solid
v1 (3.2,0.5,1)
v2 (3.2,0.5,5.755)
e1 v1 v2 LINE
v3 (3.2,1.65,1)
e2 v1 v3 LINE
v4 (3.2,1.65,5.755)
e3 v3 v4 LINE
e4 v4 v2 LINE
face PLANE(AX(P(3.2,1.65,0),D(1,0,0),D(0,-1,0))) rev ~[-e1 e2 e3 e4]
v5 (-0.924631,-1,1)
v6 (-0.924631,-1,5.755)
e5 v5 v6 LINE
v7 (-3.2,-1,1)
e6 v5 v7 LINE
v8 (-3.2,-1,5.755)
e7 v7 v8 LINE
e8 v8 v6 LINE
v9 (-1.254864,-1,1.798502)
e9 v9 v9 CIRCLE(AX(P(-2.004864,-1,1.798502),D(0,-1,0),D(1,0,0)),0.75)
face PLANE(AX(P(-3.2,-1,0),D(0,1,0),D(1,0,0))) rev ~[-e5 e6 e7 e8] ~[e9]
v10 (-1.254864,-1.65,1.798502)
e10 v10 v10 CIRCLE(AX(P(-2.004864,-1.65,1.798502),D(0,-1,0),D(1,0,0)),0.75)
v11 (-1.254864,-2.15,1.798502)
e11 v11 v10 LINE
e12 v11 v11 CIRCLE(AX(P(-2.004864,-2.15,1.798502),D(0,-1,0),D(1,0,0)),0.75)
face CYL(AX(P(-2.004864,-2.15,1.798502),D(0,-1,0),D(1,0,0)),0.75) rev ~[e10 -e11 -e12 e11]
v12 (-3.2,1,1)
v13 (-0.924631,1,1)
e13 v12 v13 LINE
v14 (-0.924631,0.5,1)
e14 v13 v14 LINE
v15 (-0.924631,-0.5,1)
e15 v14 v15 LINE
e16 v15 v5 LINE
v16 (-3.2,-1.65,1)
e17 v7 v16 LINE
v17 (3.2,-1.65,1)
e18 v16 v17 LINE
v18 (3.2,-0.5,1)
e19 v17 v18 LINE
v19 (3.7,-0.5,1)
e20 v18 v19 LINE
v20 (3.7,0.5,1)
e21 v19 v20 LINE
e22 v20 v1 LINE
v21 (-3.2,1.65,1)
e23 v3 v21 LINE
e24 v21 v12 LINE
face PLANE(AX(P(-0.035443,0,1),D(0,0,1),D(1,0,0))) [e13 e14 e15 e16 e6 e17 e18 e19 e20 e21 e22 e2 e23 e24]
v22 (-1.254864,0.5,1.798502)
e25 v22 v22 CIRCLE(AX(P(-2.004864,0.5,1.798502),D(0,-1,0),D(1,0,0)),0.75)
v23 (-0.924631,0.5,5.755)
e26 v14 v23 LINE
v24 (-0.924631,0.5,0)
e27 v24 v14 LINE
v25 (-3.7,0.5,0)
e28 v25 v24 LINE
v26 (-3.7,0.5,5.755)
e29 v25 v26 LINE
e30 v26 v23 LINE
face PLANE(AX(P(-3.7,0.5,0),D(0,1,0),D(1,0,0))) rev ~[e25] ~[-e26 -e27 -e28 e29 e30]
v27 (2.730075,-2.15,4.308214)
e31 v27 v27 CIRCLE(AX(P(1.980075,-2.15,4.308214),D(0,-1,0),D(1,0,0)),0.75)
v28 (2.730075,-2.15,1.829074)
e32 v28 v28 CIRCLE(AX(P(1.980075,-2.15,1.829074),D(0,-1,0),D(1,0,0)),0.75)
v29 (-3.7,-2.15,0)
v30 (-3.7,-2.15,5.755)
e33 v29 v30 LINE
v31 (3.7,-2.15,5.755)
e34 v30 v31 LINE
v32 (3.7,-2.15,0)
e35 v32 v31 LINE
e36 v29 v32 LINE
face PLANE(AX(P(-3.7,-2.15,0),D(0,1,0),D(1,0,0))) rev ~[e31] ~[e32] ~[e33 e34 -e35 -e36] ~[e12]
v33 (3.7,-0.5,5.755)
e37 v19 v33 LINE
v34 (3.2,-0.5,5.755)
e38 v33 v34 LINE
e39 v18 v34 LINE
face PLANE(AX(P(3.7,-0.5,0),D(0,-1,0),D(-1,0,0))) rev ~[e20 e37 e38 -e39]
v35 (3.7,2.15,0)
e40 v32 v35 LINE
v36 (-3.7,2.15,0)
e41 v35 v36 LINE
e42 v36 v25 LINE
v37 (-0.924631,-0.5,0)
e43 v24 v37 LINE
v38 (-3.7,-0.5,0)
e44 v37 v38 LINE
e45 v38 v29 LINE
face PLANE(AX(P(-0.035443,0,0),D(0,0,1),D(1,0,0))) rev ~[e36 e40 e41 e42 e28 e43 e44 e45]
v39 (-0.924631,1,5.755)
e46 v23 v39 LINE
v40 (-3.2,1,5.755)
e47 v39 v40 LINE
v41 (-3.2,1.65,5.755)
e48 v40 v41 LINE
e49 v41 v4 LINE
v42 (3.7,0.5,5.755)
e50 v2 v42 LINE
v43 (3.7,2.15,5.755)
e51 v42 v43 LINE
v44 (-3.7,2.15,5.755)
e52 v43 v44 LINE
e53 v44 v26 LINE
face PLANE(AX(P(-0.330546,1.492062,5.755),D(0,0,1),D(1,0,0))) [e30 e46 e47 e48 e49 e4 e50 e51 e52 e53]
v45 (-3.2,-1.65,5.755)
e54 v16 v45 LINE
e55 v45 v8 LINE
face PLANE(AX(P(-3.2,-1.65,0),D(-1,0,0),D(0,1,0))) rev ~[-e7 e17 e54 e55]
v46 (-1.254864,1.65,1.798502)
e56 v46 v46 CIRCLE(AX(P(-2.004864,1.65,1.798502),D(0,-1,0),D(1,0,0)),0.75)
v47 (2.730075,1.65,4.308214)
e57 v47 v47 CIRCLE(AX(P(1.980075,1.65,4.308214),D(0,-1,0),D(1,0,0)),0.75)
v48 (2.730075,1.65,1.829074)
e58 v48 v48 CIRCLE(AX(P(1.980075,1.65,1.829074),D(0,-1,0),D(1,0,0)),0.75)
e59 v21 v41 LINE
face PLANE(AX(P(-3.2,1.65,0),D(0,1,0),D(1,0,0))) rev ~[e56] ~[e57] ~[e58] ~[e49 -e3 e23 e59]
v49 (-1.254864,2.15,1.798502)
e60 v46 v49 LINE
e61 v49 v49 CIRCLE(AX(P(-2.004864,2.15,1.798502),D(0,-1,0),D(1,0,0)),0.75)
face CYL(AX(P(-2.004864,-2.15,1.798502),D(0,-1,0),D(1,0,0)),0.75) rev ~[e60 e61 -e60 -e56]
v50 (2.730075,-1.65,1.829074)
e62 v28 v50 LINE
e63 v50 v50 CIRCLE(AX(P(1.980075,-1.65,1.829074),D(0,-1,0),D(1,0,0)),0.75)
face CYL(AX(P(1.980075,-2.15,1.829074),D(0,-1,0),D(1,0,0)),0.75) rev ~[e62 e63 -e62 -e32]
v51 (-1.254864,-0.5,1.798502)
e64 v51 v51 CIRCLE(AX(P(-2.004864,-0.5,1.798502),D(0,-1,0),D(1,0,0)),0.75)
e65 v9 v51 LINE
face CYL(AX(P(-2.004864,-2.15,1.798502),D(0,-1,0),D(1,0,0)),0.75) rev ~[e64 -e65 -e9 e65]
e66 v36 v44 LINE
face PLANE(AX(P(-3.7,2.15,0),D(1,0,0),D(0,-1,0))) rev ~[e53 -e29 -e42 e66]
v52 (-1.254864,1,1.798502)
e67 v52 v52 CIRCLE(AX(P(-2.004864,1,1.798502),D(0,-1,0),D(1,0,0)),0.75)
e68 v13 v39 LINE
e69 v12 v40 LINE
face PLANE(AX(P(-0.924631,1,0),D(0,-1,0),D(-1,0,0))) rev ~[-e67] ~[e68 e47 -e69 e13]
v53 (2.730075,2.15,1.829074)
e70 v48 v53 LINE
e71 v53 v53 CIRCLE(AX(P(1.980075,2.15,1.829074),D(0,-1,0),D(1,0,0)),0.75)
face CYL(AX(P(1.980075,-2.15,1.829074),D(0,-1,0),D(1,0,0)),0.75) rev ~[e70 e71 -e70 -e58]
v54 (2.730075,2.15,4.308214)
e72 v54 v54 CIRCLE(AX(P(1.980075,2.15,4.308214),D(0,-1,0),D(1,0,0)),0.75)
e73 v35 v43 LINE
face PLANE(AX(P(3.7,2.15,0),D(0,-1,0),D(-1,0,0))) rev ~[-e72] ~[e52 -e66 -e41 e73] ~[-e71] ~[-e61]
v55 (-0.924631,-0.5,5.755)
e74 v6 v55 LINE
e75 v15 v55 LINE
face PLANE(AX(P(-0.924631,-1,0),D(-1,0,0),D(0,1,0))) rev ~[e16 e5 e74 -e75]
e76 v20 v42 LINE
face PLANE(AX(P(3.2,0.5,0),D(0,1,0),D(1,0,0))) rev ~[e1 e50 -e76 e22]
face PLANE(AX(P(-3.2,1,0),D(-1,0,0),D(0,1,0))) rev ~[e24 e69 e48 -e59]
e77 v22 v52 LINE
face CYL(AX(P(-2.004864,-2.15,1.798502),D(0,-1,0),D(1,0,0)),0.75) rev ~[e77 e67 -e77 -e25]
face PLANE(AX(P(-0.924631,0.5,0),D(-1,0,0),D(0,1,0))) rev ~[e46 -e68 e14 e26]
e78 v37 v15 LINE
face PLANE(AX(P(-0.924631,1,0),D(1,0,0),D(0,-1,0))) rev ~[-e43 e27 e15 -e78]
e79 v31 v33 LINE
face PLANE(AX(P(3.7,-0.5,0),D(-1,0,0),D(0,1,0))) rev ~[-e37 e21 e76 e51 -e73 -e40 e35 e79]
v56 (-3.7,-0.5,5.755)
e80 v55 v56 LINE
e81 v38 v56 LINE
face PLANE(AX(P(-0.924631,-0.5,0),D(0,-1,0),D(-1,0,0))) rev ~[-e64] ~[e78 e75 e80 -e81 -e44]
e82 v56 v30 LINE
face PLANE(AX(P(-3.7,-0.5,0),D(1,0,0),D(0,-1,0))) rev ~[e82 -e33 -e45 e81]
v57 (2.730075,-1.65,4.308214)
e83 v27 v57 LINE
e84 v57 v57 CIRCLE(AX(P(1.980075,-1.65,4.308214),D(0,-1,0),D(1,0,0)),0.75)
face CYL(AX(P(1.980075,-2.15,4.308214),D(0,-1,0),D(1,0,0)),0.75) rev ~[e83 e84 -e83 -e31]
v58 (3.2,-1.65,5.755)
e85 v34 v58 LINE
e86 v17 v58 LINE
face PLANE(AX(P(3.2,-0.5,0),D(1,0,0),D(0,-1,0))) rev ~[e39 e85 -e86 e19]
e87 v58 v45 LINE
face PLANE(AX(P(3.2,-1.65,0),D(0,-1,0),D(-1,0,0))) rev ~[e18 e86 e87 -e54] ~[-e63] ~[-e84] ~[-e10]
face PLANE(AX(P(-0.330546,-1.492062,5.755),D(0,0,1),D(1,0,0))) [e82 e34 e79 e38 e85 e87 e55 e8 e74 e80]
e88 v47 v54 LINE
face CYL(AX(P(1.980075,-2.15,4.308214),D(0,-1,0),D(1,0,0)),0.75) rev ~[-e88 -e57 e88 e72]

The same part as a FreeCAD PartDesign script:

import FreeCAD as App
import Part
import Sketcher

V = App.Vector
Q = App.Units.Quantity

doc = App.newDocument("Part")
body = doc.addObject("PartDesign::Body", "Body")
body.AllowCompound = True

# Sketch on XY plane
sketch1 = body.newObject("Sketcher::SketchObject", "Sketch")
sketch1.AttachmentSupport = (doc.getObject("XY_Plane"), [""])
sketch1.MapMode = "FlatFace"
sketch1.addGeometry([
    Part.LineSegment(V(-3.7, -2.1, 0), V(3.7, -2.1, 0)),  # 0
    Part.LineSegment(V(3.7, -2.1, 0), V(3.7, -0.5, 0)),  # 1
    Part.LineSegment(V(3.7, -0.5, 0), V(3.2, -0.5, 0)),  # 2
    Part.LineSegment(V(3.2, -0.5, 0), V(3.2, -1.6, 0)),  # 3
    Part.LineSegment(V(3.2, -1.6, 0), V(-3.2, -1.6, 0)),  # 4
    Part.LineSegment(V(-3.2, -1.6, 0), V(-3.2, -1, 0)),  # 5
    Part.LineSegment(V(-3.2, -1, 0), V(-0.9, -1, 0)),  # 6
    Part.LineSegment(V(-0.9, -1, 0), V(-0.9, -0.5, 0)),  # 7
    Part.LineSegment(V(-0.9, -0.5, 0), V(-3.7, -0.5, 0)),  # 8
    Part.LineSegment(V(-3.7, -0.5, 0), V(-3.7, -2.1, 0)),  # 9
    Part.LineSegment(V(3.2, 0.5, 0), V(3.7, 0.5, 0)),  # 10
    Part.LineSegment(V(3.7, 0.5, 0), V(3.7, 2.1, 0)),  # 11
    Part.LineSegment(V(3.7, 2.1, 0), V(-3.7, 2.1, 0)),  # 12
    Part.LineSegment(V(-3.7, 2.1, 0), V(-3.7, 0.5, 0)),  # 13
    Part.LineSegment(V(-3.7, 0.5, 0), V(-0.9, 0.5, 0)),  # 14
    Part.LineSegment(V(-0.9, 0.5, 0), V(-0.9, 1, 0)),  # 15
    Part.LineSegment(V(-0.9, 1, 0), V(-3.2, 1, 0)),  # 16
    Part.LineSegment(V(-3.2, 1, 0), V(-3.2, 1.6, 0)),  # 17
    Part.LineSegment(V(-3.2, 1.6, 0), V(3.2, 1.6, 0)),  # 18
    Part.LineSegment(V(3.2, 1.6, 0), V(3.2, 0.5, 0)),  # 19
], False)
sketch1.addConstraint([
    Sketcher.Constraint("Coincident", 0, 2, 1, 1),
    Sketcher.Constraint("Coincident", 1, 2, 2, 1),
    Sketcher.Constraint("Coincident", 2, 2, 3, 1),
    Sketcher.Constraint("Coincident", 3, 2, 4, 1),
    Sketcher.Constraint("Coincident", 4, 2, 5, 1),
    Sketcher.Constraint("Coincident", 5, 2, 6, 1),
    Sketcher.Constraint("Coincident", 6, 2, 7, 1),
    Sketcher.Constraint("Coincident", 7, 2, 8, 1),
    Sketcher.Constraint("Coincident", 8, 2, 9, 1),
    Sketcher.Constraint("Coincident", 9, 2, 0, 1),
    Sketcher.Constraint("Coincident", 10, 2, 11, 1),
    Sketcher.Constraint("Coincident", 11, 2, 12, 1),
    Sketcher.Constraint("Coincident", 12, 2, 13, 1),
    Sketcher.Constraint("Coincident", 13, 2, 14, 1),
    Sketcher.Constraint("Coincident", 14, 2, 15, 1),
    Sketcher.Constraint("Coincident", 15, 2, 16, 1),
    Sketcher.Constraint("Coincident", 16, 2, 17, 1),
    Sketcher.Constraint("Coincident", 17, 2, 18, 1),
    Sketcher.Constraint("Coincident", 18, 2, 19, 1),
    Sketcher.Constraint("Coincident", 19, 2, 10, 1),
    Sketcher.Constraint("Horizontal", 0),
    Sketcher.Constraint("Vertical", 1),
    Sketcher.Constraint("Horizontal", 2),
    Sketcher.Constraint("Vertical", 3),
    Sketcher.Constraint("Horizontal", 4),
    Sketcher.Constraint("Vertical", 5),
    Sketcher.Constraint("Horizontal", 6),
    Sketcher.Constraint("Vertical", 7),
    Sketcher.Constraint("Horizontal", 8),
    Sketcher.Constraint("Vertical", 9),
    Sketcher.Constraint("Horizontal", 10),
    Sketcher.Constraint("Vertical", 11),
    Sketcher.Constraint("Horizontal", 12),
    Sketcher.Constraint("Vertical", 13),
    Sketcher.Constraint("Horizontal", 14),
    Sketcher.Constraint("Vertical", 15),
    Sketcher.Constraint("Horizontal", 16),
    Sketcher.Constraint("Vertical", 17),
    Sketcher.Constraint("Horizontal", 18),
    Sketcher.Constraint("Vertical", 19),
    Sketcher.Constraint("Symmetric", 8, 2, 10, 2, -1, 1),
    Sketcher.Constraint("Symmetric", 0, 2, 12, 2, -1, 1),
    Sketcher.Constraint("Symmetric", 3, 2, 17, 2, -1, 1),
    Sketcher.Constraint("Symmetric", 1, 2, 8, 2, -2),
    Sketcher.Constraint("Symmetric", 7, 2, 14, 2, -1),
    Sketcher.Constraint("Symmetric", 5, 2, 16, 2, -1),
    Sketcher.Constraint("Vertical", 3, 2, 18, 2),
    Sketcher.Constraint("Equal", 10, 7),
    Sketcher.Constraint("DistanceX", 0, 1, 0, 2, Q("7.4 mm")),
    Sketcher.Constraint("DistanceX", 2, 2, 2, 1, Q("0.5 mm")),
    Sketcher.Constraint("DistanceY", 5, 2, -1, 1, Q("1 mm")),
    Sketcher.Constraint("DistanceY", 1, 1, 1, 2, Q("1.65 mm")),
    Sketcher.Constraint("DistanceY", 3, 2, 3, 1, Q("1.15 mm")),
    Sketcher.Constraint("DistanceX", 6, 1, 6, 2, Q("2.275369 mm")),
])
pad1 = body.newObject("PartDesign::Pad", "Pad")
pad1.Profile = sketch1
pad1.Length = 5.755

# Sketch on XZ plane
sketch2 = body.newObject("Sketcher::SketchObject", "Sketch001")
sketch2.AttachmentSupport = (doc.getObject("XZ_Plane"), [""])
sketch2.MapMode = "FlatFace"
sketch2.AttachmentOffset = App.Placement(V(0, 0, 2.15), App.Rotation())
sketch2.addGeometry([
    Part.Circle(V(2, 4.3, 0), V(0, 0, 1), 0.8),
    Part.Circle(V(2, 1.8, 0), V(0, 0, 1), 0.8),
    Part.Circle(V(-2, 1.8, 0), V(0, 0, 1), 0.8),
], False)
sketch2.addConstraint([
    Sketcher.Constraint("Equal", 0, 1),
    Sketcher.Constraint("Equal", 1, 2),
    Sketcher.Constraint("Vertical", 0, 3, 1, 3),
    Sketcher.Constraint("Diameter", 0, Q("1.5 mm")),
    Sketcher.Constraint("DistanceY", 1, 3, 0, 3, Q("2.47914 mm")),
    Sketcher.Constraint("DistanceX", 2, 3, 1, 3, Q("3.984939 mm")),
    Sketcher.Constraint("DistanceX", -1, 1, 0, 3, Q("1.980075 mm")),
    Sketcher.Constraint("DistanceY", -1, 1, 0, 3, Q("4.308214 mm")),
    Sketcher.Constraint("DistanceY", -1, 1, 2, 3, Q("1.798502 mm")),
])
pocket1 = body.newObject("PartDesign::Pocket", "Pocket")
pocket1.Profile = sketch2
pocket1.Length = 25

# Sketch on XY plane
sketch3 = body.newObject("Sketcher::SketchObject", "Sketch002")
sketch3.AttachmentSupport = (doc.getObject("XY_Plane"), [""])
sketch3.MapMode = "FlatFace"
sketch3.addGeometry([
    Part.LineSegment(V(3.2, -0.5, 0), V(3.7, -0.5, 0)),  # 0
    Part.LineSegment(V(3.7, -0.5, 0), V(3.7, 0.5, 0)),  # 1
    Part.LineSegment(V(3.7, 0.5, 0), V(3.2, 0.5, 0)),  # 2
    Part.LineSegment(V(3.2, 0.5, 0), V(3.2, 1.6, 0)),  # 3
    Part.LineSegment(V(3.2, 1.6, 0), V(-3.2, 1.6, 0)),  # 4
    Part.LineSegment(V(-3.2, 1.6, 0), V(-3.2, 1, 0)),  # 5
    Part.LineSegment(V(-3.2, 1, 0), V(-0.9, 1, 0)),  # 6
    Part.LineSegment(V(-0.9, 1, 0), V(-0.9, -1, 0)),  # 7
    Part.LineSegment(V(-0.9, -1, 0), V(-3.2, -1, 0)),  # 8
    Part.LineSegment(V(-3.2, -1, 0), V(-3.2, -1.6, 0)),  # 9
    Part.LineSegment(V(-3.2, -1.6, 0), V(3.2, -1.6, 0)),  # 10
    Part.LineSegment(V(3.2, -1.6, 0), V(3.2, -0.5, 0)),  # 11
], False)
sketch3.addConstraint([
    Sketcher.Constraint("Coincident", 0, 2, 1, 1),
    Sketcher.Constraint("Coincident", 1, 2, 2, 1),
    Sketcher.Constraint("Coincident", 2, 2, 3, 1),
    Sketcher.Constraint("Coincident", 3, 2, 4, 1),
    Sketcher.Constraint("Coincident", 4, 2, 5, 1),
    Sketcher.Constraint("Coincident", 5, 2, 6, 1),
    Sketcher.Constraint("Coincident", 6, 2, 7, 1),
    Sketcher.Constraint("Coincident", 7, 2, 8, 1),
    Sketcher.Constraint("Coincident", 8, 2, 9, 1),
    Sketcher.Constraint("Coincident", 9, 2, 10, 1),
    Sketcher.Constraint("Coincident", 10, 2, 11, 1),
    Sketcher.Constraint("Coincident", 11, 2, 0, 1),
    Sketcher.Constraint("Horizontal", 0),
    Sketcher.Constraint("Vertical", 1),
    Sketcher.Constraint("Horizontal", 2),
    Sketcher.Constraint("Vertical", 3),
    Sketcher.Constraint("Horizontal", 4),
    Sketcher.Constraint("Vertical", 5),
    Sketcher.Constraint("Horizontal", 6),
    Sketcher.Constraint("Vertical", 7),
    Sketcher.Constraint("Horizontal", 8),
    Sketcher.Constraint("Vertical", 9),
    Sketcher.Constraint("Horizontal", 10),
    Sketcher.Constraint("Vertical", 11),
    Sketcher.Constraint("Symmetric", 3, 2, 9, 2, -1, 1),
    Sketcher.Constraint("Symmetric", 5, 2, 8, 2, -1),
    Sketcher.Constraint("Symmetric", 2, 2, 11, 2, -1),
    Sketcher.Constraint("DistanceY", 1, 1, 1, 2, Q("1 mm")),
    Sketcher.Constraint("DistanceY", 7, 2, 7, 1, Q("2 mm")),
    Sketcher.Constraint("DistanceX", 0, 1, 0, 2, Q("0.5 mm")),
    Sketcher.Constraint("DistanceX", 4, 2, 4, 1, Q("6.4 mm")),
    Sketcher.Constraint("DistanceY", 3, 1, 3, 2, Q("1.15 mm")),
    Sketcher.Constraint("DistanceX", 6, 1, 6, 2, Q("2.275369 mm")),
])
pad2 = body.newObject("PartDesign::Pad", "Pad001")
pad2.Profile = sketch3
pad2.Length = 1

doc.recompute()
